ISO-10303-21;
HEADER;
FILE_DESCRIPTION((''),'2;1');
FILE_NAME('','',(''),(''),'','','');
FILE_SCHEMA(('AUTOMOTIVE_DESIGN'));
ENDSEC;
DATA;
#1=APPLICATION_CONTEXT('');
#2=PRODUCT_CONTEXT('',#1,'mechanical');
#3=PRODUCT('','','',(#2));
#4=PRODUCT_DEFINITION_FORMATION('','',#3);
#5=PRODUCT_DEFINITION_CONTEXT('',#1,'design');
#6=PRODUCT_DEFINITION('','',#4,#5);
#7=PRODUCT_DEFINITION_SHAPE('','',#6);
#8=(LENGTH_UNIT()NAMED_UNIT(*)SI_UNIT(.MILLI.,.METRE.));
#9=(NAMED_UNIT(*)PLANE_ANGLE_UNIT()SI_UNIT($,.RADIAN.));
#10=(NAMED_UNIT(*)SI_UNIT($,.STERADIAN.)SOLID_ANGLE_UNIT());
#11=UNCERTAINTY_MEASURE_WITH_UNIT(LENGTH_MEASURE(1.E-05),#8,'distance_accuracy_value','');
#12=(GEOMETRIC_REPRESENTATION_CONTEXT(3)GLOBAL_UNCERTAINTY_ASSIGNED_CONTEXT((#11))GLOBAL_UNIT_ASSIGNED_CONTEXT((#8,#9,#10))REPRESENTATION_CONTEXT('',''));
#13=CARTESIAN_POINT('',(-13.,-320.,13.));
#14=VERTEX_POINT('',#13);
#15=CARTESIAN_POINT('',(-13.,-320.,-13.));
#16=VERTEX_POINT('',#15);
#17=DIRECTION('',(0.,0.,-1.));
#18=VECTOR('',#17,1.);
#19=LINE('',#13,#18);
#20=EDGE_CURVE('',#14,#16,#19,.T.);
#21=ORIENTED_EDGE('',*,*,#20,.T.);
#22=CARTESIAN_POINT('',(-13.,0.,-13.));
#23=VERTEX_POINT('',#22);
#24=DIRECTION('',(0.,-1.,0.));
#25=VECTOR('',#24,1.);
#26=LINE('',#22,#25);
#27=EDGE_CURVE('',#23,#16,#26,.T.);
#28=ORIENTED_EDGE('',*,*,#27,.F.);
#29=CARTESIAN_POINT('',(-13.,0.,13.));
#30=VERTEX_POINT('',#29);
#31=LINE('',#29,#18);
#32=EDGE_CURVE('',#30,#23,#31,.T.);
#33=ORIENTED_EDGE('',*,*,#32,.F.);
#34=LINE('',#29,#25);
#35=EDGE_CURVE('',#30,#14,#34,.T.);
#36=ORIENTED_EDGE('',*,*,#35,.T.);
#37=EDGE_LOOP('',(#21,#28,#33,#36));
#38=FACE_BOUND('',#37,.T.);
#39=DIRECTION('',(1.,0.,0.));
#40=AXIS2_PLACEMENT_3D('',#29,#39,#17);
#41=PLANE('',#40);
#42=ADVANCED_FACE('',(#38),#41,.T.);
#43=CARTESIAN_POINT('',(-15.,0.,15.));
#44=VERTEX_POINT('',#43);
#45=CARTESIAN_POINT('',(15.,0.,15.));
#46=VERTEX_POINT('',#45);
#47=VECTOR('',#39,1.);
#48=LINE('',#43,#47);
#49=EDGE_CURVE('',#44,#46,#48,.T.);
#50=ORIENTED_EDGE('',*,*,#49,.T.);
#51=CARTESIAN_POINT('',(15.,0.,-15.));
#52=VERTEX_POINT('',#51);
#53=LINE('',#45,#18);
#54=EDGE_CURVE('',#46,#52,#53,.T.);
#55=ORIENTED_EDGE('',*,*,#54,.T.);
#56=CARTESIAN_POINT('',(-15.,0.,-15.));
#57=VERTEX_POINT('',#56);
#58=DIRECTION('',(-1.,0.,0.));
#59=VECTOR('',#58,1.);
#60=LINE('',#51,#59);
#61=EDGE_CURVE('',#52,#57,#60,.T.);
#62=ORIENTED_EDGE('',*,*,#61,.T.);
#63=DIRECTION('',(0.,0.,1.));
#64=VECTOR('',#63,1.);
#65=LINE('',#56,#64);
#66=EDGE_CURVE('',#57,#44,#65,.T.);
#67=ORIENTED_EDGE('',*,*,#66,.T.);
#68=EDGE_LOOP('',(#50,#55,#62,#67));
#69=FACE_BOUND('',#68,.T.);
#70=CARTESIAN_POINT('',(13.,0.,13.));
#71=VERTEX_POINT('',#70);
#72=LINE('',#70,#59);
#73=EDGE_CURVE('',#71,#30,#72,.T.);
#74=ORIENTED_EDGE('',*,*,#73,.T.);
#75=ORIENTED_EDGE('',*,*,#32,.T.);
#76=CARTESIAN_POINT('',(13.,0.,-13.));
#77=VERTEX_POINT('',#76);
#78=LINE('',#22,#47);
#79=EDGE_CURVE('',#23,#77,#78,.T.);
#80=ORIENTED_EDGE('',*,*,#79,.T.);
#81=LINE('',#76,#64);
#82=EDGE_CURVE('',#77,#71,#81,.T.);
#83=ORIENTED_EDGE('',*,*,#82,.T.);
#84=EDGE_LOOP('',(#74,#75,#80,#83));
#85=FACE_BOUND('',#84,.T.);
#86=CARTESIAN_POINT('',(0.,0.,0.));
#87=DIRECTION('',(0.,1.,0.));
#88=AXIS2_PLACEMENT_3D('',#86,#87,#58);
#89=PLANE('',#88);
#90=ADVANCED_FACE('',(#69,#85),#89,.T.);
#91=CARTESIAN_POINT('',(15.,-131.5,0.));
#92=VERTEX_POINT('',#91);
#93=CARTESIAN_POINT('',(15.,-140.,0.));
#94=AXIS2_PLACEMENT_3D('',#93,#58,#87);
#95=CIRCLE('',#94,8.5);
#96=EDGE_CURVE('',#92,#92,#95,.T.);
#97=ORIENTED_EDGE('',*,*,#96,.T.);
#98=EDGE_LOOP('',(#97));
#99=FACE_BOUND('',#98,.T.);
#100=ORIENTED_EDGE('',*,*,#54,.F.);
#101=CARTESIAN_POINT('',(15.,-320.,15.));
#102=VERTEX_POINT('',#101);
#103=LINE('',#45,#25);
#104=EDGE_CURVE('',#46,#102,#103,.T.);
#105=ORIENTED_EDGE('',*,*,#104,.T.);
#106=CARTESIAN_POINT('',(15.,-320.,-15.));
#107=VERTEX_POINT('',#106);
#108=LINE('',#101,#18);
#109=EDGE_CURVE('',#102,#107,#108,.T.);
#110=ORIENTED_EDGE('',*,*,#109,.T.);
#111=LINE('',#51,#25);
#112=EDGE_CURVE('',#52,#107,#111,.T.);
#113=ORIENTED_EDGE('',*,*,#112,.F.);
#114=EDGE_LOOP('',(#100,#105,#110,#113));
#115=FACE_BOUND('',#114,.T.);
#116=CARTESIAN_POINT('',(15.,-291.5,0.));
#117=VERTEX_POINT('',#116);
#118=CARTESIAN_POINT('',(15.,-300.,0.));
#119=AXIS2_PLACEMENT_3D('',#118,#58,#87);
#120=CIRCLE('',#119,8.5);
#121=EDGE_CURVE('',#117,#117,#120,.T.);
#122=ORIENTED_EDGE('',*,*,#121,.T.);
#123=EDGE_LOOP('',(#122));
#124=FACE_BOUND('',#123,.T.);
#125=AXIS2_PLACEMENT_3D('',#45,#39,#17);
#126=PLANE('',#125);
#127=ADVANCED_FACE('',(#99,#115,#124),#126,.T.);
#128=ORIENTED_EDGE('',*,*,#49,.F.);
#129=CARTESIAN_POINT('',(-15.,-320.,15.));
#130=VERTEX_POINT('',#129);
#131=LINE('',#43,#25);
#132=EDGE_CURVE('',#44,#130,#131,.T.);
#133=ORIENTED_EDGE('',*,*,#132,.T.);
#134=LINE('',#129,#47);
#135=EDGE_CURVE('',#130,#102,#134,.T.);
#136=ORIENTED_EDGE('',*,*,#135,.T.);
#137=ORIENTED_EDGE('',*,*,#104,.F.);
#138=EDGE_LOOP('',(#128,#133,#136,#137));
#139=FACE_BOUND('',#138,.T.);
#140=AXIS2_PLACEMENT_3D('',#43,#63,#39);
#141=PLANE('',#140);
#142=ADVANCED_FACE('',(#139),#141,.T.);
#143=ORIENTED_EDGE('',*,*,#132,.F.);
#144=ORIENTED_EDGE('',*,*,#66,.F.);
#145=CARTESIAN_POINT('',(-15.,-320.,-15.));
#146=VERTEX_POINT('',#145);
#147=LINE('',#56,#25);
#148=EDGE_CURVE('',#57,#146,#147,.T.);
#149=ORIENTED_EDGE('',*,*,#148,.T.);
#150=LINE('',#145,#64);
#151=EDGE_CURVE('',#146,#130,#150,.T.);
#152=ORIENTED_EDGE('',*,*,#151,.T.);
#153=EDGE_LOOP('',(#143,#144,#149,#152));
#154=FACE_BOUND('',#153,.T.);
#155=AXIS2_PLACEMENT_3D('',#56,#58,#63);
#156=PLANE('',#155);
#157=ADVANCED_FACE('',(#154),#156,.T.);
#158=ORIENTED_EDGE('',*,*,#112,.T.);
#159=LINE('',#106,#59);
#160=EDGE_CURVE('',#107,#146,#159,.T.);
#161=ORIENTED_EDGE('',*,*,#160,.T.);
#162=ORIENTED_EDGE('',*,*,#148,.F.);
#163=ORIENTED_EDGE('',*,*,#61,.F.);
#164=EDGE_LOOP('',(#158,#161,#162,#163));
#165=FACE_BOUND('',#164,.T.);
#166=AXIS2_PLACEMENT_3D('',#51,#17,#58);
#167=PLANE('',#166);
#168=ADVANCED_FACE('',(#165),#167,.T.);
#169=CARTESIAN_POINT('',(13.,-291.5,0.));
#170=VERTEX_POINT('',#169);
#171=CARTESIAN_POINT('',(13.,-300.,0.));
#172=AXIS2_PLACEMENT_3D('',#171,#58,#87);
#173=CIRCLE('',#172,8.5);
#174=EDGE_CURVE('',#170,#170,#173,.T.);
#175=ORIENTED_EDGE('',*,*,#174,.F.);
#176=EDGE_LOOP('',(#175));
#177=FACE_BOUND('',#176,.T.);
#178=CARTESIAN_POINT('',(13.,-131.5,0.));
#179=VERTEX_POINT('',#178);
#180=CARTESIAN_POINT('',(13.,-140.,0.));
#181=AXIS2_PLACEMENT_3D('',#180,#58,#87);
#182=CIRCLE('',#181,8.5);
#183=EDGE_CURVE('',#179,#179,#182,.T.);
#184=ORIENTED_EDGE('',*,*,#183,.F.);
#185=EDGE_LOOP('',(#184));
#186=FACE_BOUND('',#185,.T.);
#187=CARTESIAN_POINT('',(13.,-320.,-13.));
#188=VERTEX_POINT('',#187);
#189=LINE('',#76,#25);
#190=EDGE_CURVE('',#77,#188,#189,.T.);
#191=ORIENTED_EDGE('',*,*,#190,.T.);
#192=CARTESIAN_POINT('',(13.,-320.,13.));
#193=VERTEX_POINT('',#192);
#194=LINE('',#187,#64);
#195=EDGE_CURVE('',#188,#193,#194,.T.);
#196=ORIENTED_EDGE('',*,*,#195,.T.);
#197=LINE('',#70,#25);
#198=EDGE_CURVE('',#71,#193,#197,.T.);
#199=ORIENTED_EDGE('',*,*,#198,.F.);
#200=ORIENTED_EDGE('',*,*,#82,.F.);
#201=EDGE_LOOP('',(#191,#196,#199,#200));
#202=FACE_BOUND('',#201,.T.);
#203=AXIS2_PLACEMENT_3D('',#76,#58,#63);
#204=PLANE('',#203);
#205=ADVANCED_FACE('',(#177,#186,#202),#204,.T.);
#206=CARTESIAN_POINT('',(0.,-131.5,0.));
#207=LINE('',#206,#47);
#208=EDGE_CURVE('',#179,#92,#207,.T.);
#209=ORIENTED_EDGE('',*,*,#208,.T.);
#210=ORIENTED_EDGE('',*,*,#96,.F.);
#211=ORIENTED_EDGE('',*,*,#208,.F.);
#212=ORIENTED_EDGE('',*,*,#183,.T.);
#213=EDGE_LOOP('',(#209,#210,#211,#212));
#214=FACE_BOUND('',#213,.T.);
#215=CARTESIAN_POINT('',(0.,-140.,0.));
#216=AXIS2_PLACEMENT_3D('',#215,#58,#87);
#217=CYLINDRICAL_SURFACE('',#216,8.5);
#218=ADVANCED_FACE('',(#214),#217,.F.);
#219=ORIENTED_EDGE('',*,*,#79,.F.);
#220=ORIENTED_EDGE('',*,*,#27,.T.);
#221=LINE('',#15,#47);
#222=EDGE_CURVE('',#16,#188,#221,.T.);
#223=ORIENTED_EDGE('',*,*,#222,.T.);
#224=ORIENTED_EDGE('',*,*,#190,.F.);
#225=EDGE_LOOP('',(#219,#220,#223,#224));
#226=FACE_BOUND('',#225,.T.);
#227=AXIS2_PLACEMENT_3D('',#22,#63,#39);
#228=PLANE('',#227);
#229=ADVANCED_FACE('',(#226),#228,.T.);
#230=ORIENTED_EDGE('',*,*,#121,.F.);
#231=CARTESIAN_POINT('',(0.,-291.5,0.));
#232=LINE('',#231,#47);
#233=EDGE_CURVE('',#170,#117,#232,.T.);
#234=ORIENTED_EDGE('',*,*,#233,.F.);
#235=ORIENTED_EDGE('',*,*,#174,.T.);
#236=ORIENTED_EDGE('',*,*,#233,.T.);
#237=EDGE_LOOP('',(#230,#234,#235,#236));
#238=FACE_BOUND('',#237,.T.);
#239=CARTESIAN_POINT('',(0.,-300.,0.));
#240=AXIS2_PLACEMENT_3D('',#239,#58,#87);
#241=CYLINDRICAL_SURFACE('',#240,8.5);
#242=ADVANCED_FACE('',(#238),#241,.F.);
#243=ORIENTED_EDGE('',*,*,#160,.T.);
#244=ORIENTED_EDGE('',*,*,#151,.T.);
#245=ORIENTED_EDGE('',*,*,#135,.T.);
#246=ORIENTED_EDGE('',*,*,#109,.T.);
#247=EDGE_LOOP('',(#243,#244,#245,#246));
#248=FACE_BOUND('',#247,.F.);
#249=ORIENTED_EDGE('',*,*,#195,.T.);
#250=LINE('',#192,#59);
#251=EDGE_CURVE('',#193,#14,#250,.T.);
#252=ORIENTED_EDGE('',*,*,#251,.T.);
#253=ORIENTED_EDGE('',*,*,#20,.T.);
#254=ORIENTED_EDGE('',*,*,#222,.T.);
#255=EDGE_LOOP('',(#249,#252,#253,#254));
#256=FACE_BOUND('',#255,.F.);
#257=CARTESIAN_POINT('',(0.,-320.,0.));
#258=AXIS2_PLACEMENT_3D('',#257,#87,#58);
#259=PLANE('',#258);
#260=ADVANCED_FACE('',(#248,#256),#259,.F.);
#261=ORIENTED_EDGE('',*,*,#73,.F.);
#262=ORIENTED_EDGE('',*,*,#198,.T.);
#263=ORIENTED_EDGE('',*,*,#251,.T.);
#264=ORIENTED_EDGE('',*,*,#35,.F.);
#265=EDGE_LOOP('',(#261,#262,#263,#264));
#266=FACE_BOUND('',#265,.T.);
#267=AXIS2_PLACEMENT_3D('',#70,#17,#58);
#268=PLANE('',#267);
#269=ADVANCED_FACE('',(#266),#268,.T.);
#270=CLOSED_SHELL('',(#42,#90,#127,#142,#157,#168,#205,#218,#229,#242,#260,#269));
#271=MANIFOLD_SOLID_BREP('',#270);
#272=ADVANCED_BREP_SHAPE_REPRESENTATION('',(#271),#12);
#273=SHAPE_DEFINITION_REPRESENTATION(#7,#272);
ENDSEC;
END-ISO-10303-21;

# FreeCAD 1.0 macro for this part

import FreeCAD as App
import Part
import Sketcher
Q = App.Units.Quantity

doc = App.newDocument("Part")
body = doc.addObject("PartDesign::Body", "Body")

# Sketch on XZ plane
sketch1 = doc.addObject("Sketcher::SketchObject", "Sketch")
body.addObject(sketch1)
sketch1.AttachmentSupport = (doc.XZ_Plane, [""])
sketch1.MapMode = "FlatFace"
sketch1.addGeometry(Part.LineSegment(App.Vector(-15, -15, 0), App.Vector(-15, 15, 0)), False)
sketch1.addGeometry(Part.LineSegment(App.Vector(-15, 15, 0), App.Vector(15, 15, 0)), False)
sketch1.addGeometry(Part.LineSegment(App.Vector(15, 15, 0), App.Vector(15, -15, 0)), False)
sketch1.addGeometry(Part.LineSegment(App.Vector(15, -15, 0), App.Vector(-15, -15, 0)), False)
sketch1.addGeometry(Part.LineSegment(App.Vector(13, -13, 0), App.Vector(13, 13, 0)), False)
sketch1.addGeometry(Part.LineSegment(App.Vector(13, 13, 0), App.Vector(-13, 13, 0)), False)
sketch1.addGeometry(Part.LineSegment(App.Vector(-13, 13, 0), App.Vector(-13, -13, 0)), False)
sketch1.addGeometry(Part.LineSegment(App.Vector(-13, -13, 0), App.Vector(13, -13, 0)), False)
sketch1.addConstraint(Sketcher.Constraint("Coincident", 0, 2, 1, 1))
sketch1.addConstraint(Sketcher.Constraint("Coincident", 1, 2, 2, 1))
sketch1.addConstraint(Sketcher.Constraint("Coincident", 2, 2, 3, 1))
sketch1.addConstraint(Sketcher.Constraint("Coincident", 3, 2, 0, 1))
sketch1.addConstraint(Sketcher.Constraint("Coincident", 4, 2, 5, 1))
sketch1.addConstraint(Sketcher.Constraint("Coincident", 5, 2, 6, 1))
sketch1.addConstraint(Sketcher.Constraint("Coincident", 6, 2, 7, 1))
sketch1.addConstraint(Sketcher.Constraint("Coincident", 7, 2, 4, 1))
sketch1.addConstraint(Sketcher.Constraint("Vertical", 0))
sketch1.addConstraint(Sketcher.Constraint("Horizontal", 1))
sketch1.addConstraint(Sketcher.Constraint("Vertical", 2))
sketch1.addConstraint(Sketcher.Constraint("Horizontal", 3))
sketch1.addConstraint(Sketcher.Constraint("Vertical", 4))
sketch1.addConstraint(Sketcher.Constraint("Horizontal", 5))
sketch1.addConstraint(Sketcher.Constraint("Vertical", 6))
sketch1.addConstraint(Sketcher.Constraint("Horizontal", 7))
sketch1.addConstraint(Sketcher.Constraint("Symmetric", 0, 2, 2, 2, -1, 1))
sketch1.addConstraint(Sketcher.Constraint("Symmetric", 4, 2, 6, 2, -1, 1))
sketch1.addConstraint(Sketcher.Constraint("Equal", 3, 0))
sketch1.addConstraint(Sketcher.Constraint("Equal", 7, 4))
sketch1.addConstraint(Sketcher.Constraint("DistanceX", 1, 1, 1, 2, Q("30 mm")))
sketch1.addConstraint(Sketcher.Constraint("DistanceX", 4, 2, 1, 2, Q("2 mm")))
pad1 = doc.addObject("PartDesign::Pad", "Pad")
body.addObject(pad1)
pad1.Profile = sketch1
pad1.Length = 320

# Sketch on YZ plane
sketch2 = doc.addObject("Sketcher::SketchObject", "Sketch001")
body.addObject(sketch2)
sketch2.AttachmentSupport = (doc.YZ_Plane, [""])
sketch2.MapMode = "FlatFace"
sketch2.addGeometry(Part.Circle(App.Vector(-140, 0, 0), App.Vector(0, 0, 1), 8), False)
sketch2.addGeometry(Part.Circle(App.Vector(-300, 0, 0), App.Vector(0, 0, 1), 8), False)
sketch2.addConstraint(Sketcher.Constraint("Equal", 0, 1))
sketch2.addConstraint(Sketcher.Constraint("PointOnObject", 0, 3, -1))
sketch2.addConstraint(Sketcher.Constraint("PointOnObject", 1, 3, -1))
sketch2.addConstraint(Sketcher.Constraint("Diameter", 0, Q("17 mm")))
sketch2.addConstraint(Sketcher.Constraint("DistanceX", 0, 3, -1, 1, Q("140 mm")))
sketch2.addConstraint(Sketcher.Constraint("DistanceX", 1, 3, -1, 1, Q("300 mm")))
pocket1 = doc.addObject("PartDesign::Pocket", "Pocket")
body.addObject(pocket1)
pocket1.Profile = sketch2
pocket1.Type = "ThroughAll"
pocket1.Reversed = True

doc.recompute()
